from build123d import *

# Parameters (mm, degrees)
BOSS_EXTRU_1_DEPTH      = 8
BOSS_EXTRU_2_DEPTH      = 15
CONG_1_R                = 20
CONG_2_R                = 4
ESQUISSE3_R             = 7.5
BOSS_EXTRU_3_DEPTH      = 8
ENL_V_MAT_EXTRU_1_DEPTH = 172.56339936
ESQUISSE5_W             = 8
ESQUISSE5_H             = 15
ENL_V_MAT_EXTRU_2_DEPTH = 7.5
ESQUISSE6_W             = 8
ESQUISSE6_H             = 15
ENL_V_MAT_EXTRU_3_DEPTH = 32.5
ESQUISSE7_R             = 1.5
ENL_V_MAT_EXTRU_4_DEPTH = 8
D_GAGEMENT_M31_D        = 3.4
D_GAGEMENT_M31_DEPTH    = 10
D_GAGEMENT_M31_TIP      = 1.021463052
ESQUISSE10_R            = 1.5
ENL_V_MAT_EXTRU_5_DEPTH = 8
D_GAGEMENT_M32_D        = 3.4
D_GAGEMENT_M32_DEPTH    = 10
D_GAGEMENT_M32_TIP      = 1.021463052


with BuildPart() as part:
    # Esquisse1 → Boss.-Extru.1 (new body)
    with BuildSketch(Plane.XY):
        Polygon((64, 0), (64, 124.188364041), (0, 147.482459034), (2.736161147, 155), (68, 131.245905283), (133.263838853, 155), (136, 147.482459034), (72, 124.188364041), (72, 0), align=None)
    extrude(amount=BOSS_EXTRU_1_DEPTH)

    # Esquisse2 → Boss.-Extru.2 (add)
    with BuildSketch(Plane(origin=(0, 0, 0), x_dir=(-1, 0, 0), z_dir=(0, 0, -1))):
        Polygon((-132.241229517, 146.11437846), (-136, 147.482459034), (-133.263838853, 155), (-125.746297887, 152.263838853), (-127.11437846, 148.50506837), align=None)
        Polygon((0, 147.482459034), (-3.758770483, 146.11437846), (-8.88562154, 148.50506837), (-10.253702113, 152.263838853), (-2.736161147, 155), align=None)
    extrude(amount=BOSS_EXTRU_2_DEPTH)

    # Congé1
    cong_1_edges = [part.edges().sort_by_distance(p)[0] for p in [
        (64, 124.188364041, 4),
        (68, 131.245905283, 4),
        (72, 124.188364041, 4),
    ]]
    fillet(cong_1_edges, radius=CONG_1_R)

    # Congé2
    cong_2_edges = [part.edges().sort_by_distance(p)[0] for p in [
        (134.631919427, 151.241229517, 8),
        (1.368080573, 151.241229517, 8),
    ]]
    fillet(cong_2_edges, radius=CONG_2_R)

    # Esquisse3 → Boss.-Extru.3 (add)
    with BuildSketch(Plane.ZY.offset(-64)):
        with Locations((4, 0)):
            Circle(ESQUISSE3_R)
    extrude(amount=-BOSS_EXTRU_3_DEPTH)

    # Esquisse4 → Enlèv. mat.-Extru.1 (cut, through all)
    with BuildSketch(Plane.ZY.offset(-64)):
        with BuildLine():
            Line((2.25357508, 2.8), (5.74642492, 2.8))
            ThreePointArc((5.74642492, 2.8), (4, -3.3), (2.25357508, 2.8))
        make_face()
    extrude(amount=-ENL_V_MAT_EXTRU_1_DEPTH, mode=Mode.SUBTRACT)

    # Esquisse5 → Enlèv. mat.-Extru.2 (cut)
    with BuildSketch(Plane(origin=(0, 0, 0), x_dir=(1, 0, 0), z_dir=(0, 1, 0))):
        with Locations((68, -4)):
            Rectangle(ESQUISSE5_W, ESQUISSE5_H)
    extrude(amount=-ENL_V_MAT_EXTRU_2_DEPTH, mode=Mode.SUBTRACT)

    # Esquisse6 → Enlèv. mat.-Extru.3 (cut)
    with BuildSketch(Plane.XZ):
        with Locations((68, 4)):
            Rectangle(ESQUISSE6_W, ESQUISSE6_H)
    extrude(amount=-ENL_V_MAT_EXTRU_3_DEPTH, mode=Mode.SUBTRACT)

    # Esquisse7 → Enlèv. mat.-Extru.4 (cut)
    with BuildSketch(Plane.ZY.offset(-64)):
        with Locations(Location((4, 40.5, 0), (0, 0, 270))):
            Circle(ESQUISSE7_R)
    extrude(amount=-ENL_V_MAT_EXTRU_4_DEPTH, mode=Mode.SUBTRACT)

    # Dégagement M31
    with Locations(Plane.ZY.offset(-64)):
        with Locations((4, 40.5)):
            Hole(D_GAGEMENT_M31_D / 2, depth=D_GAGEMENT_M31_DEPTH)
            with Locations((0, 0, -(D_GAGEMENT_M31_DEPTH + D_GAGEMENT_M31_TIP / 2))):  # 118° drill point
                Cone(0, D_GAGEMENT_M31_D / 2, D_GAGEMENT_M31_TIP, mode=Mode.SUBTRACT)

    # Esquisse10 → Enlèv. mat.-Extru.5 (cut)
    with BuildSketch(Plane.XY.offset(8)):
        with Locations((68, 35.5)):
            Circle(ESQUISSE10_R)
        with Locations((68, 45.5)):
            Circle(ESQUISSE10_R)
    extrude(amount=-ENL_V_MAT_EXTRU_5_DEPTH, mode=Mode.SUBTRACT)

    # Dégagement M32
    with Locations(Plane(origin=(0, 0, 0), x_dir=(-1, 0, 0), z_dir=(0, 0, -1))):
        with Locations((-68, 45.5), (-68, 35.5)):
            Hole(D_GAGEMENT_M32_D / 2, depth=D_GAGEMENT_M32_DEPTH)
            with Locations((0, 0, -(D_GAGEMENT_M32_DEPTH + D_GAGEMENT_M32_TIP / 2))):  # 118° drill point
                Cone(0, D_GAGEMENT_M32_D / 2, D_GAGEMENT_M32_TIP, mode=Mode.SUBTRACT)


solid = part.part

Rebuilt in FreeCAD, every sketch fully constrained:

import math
import FreeCAD as App
import Part
import Sketcher
from FreeCAD import Vector
Q = App.Units.Quantity


def edges_at(feature, points):
    """Names of the edges that pass closest to the given points."""
    edges = feature.Shape.Edges
    near = lambda p: min(range(len(edges)), key=lambda i: edges[i].distToShape(Part.Vertex(*p))[0])
    return sorted({f"Edge{near(p) + 1}" for p in points})

doc = App.newDocument("Part")
body = doc.addObject("PartDesign::Body", "Body")

# Sketch on XY plane
sketch1 = doc.addObject("Sketcher::SketchObject", "Sketch")
body.addObject(sketch1)
sketch1.AttachmentSupport = (doc.XY_Plane, [""])
sketch1.MapMode = "FlatFace"
sketch1.addGeometry([
    Part.LineSegment(Vector(64, 124.188364, 0), Vector(64, 0, 0)),  # 0
    Part.LineSegment(Vector(64, 0, 0), Vector(72, 0, 0)),  # 1
    Part.LineSegment(Vector(72, 0, 0), Vector(72, 124.188364, 0)),  # 2
    Part.LineSegment(Vector(72, 124.188364, 0), Vector(136, 147.482459, 0)),  # 3
    Part.LineSegment(Vector(136, 147.482459, 0), Vector(133.263839, 155, 0)),  # 4
    Part.LineSegment(Vector(133.263839, 155, 0), Vector(68, 131.245905, 0)),  # 5
    Part.LineSegment(Vector(68, 131.245905, 0), Vector(2.736161, 155, 0)),  # 6
    Part.LineSegment(Vector(2.736161, 155, 0), Vector(0, 147.482459, 0)),  # 7
    Part.LineSegment(Vector(0, 147.482459, 0), Vector(64, 124.188364, 0)),  # 8
], False)
sketch1.addConstraint([
    Sketcher.Constraint("Coincident", 0, 2, 1, 1),
    Sketcher.Constraint("Coincident", 1, 2, 2, 1),
    Sketcher.Constraint("Coincident", 2, 2, 3, 1),
    Sketcher.Constraint("Coincident", 3, 2, 4, 1),
    Sketcher.Constraint("Coincident", 4, 2, 5, 1),
    Sketcher.Constraint("Coincident", 5, 2, 6, 1),
    Sketcher.Constraint("Coincident", 6, 2, 7, 1),
    Sketcher.Constraint("Coincident", 7, 2, 8, 1),
    Sketcher.Constraint("Coincident", 8, 2, 0, 1),
    Sketcher.Constraint("Vertical", 0),
    Sketcher.Constraint("Horizontal", 1),
    Sketcher.Constraint("Vertical", 2),
    Sketcher.Constraint("PointOnObject", 0, 2, -1),
    Sketcher.Constraint("PointOnObject", 7, 2, -2),
    Sketcher.Constraint("Perpendicular", 3, 4),
    Sketcher.Constraint("Perpendicular", 4, 5),
    Sketcher.Constraint("Perpendicular", 6, 7),
    Sketcher.Constraint("Perpendicular", 7, 8),
    Sketcher.Constraint("Horizontal", 4, 2, 6, 2),
    Sketcher.Constraint("Horizontal", 3, 2, 7, 2),
    Sketcher.Constraint("Horizontal", 2, 2, 8, 2),
    Sketcher.Constraint("Equal", 5, 6),
    Sketcher.Constraint("DistanceX", 1, 1, 1, 2, Q("8 mm")),
    Sketcher.Constraint("Angle", 3, Q("20 deg")),
    Sketcher.Constraint("Distance", 4, Q("8 mm")),
    Sketcher.Constraint("DistanceX", -1, 1, 0, 2, Q("64 mm")),
    Sketcher.Constraint("DistanceY", -1, 1, 4, 2, Q("155 mm")),
])
pad1 = doc.addObject("PartDesign::Pad", "Pad")
body.addObject(pad1)
pad1.Profile = sketch1
pad1.Length = 8

# Sketch on XY plane
sketch2 = doc.addObject("Sketcher::SketchObject", "Sketch001")
body.addObject(sketch2)
sketch2.AttachmentSupport = (doc.XY_Plane, [""])
sketch2.MapMode = "FlatFace"
sketch2.addGeometry([
    Part.LineSegment(Vector(136, 147.482459, 0), Vector(132.24123, 146.114378, 0)),  # 0
    Part.LineSegment(Vector(132.24123, 146.114378, 0), Vector(127.114378, 148.505068, 0)),  # 1
    Part.LineSegment(Vector(127.114378, 148.505068, 0), Vector(125.746298, 152.263839, 0)),  # 2
    Part.LineSegment(Vector(125.746298, 152.263839, 0), Vector(133.263839, 155, 0)),  # 3
    Part.LineSegment(Vector(133.263839, 155, 0), Vector(136, 147.482459, 0)),  # 4
    Part.LineSegment(Vector(3.75877, 146.114378, 0), Vector(0, 147.482459, 0)),  # 5
    Part.LineSegment(Vector(0, 147.482459, 0), Vector(2.736161, 155, 0)),  # 6
    Part.LineSegment(Vector(2.736161, 155, 0), Vector(10.253702, 152.263839, 0)),  # 7
    Part.LineSegment(Vector(10.253702, 152.263839, 0), Vector(8.885622, 148.505068, 0)),  # 8
    Part.LineSegment(Vector(8.885622, 148.505068, 0), Vector(3.75877, 146.114378, 0)),  # 9
], False)
sketch2.addConstraint([
    Sketcher.Constraint("Coincident", 0, 2, 1, 1),
    Sketcher.Constraint("Coincident", 1, 2, 2, 1),
    Sketcher.Constraint("Coincident", 2, 2, 3, 1),
    Sketcher.Constraint("Coincident", 3, 2, 4, 1),
    Sketcher.Constraint("Coincident", 4, 2, 0, 1),
    Sketcher.Constraint("Coincident", 5, 2, 6, 1),
    Sketcher.Constraint("Coincident", 6, 2, 7, 1),
    Sketcher.Constraint("Coincident", 7, 2, 8, 1),
    Sketcher.Constraint("Coincident", 8, 2, 9, 1),
    Sketcher.Constraint("Coincident", 9, 2, 5, 1),
    Sketcher.Constraint("PointOnObject", 5, 2, -2),
    Sketcher.Constraint("Perpendicular", 0, 2),
    Sketcher.Constraint("Perpendicular", 2, 3),
    Sketcher.Constraint("Perpendicular", 3, 4),
    Sketcher.Constraint("Perpendicular", 5, 6),
    Sketcher.Constraint("Perpendicular", 6, 7),
    Sketcher.Constraint("Perpendicular", 7, 8),
    Sketcher.Constraint("Horizontal", 4, 2, 5, 2),
    Sketcher.Constraint("Horizontal", 3, 2, 6, 2),
    Sketcher.Constraint("Horizontal", 2, 2, 7, 2),
    Sketcher.Constraint("Horizontal", 1, 2, 8, 2),
    Sketcher.Constraint("Horizontal", 0, 2, 9, 2),
    Sketcher.Constraint("Equal", 0, 2),
    Sketcher.Constraint("Equal", 3, 4),
    Sketcher.Constraint("Equal", 2, 5),
    Sketcher.Constraint("Angle", 0, Q("-160 deg")),
    Sketcher.Constraint("Distance", 0, Q("4 mm")),
    Sketcher.Constraint("Distance", 3, Q("8 mm")),
    Sketcher.Constraint("DistanceY", -1, 1, 3, 2, Q("155 mm")),
    Sketcher.Constraint("DistanceX", -1, 1, 4, 2, Q("136 mm")),
])
pad2 = doc.addObject("PartDesign::Pad", "Pad001")
body.addObject(pad2)
pad2.Profile = sketch2
pad2.Length = 15
pad2.Reversed = True
doc.recompute()

fillet = doc.addObject("PartDesign::Fillet", "Fillet")
body.addObject(fillet)
fillet.Base = (pad2, edges_at(pad2, [(64, 124.188, 4), (68, 131.246, 4), (72, 124.188, 4)]))
fillet.Radius = 20
doc.recompute()

fillet2 = doc.addObject("PartDesign::Fillet", "Fillet001")
body.addObject(fillet2)
fillet2.Base = (fillet, edges_at(fillet, [(134.632, 151.241, 8), (1.368, 151.241, 8)]))
fillet2.Radius = 4

# Sketch on YZ plane
sketch3 = doc.addObject("Sketcher::SketchObject", "Sketch002")
body.addObject(sketch3)
sketch3.AttachmentSupport = (doc.YZ_Plane, [""])
sketch3.MapMode = "FlatFace"
sketch3.AttachmentOffset = App.Placement(Vector(0, 0, 64), App.Rotation())
sketch3.addGeometry(Part.Circle(Vector(0, 4, 0), Vector(0, 0, 1), 7.5), False)
sketch3.addConstraint([
    Sketcher.Constraint("PointOnObject", 0, 3, -2),
    Sketcher.Constraint("Diameter", 0, Q("15 mm")),
    Sketcher.Constraint("DistanceY", -1, 1, 0, 3, Q("4 mm")),
])
pad3 = doc.addObject("PartDesign::Pad", "Pad002")
body.addObject(pad3)
pad3.Profile = sketch3
pad3.Length = 8

# Sketch on YZ plane
sketch4 = doc.addObject("Sketcher::SketchObject", "Sketch003")
body.addObject(sketch4)
sketch4.AttachmentSupport = (doc.YZ_Plane, [""])
sketch4.MapMode = "FlatFace"
sketch4.AttachmentOffset = App.Placement(Vector(0, 0, 64), App.Rotation())
sketch4.addGeometry([
    Part.LineSegment(Vector(2.8, 5.746425, 0), Vector(2.8, 2.253575, 0)),
    Part.ArcOfCircle(Part.Circle(Vector(0, 4, 0), Vector(0, 0, 1), 3.3), math.radians(31.952746), math.radians(328.047254)),
], False)
sketch4.addConstraint([
    Sketcher.Constraint("Coincident", 0, 1, 1, 1),
    Sketcher.Constraint("Coincident", 1, 2, 0, 2),
    Sketcher.Constraint("Vertical", 0),
    Sketcher.Constraint("PointOnObject", 1, 3, -2),
    Sketcher.Constraint("Radius", 1, Q("3.3 mm")),
    Sketcher.Constraint("DistanceY", -1, 1, 1, 3, Q("4 mm")),
    Sketcher.Constraint("DistanceX", -1, 1, 0, 1, Q("2.8 mm")),
])
pocket1 = doc.addObject("PartDesign::Pocket", "Pocket")
body.addObject(pocket1)
pocket1.Profile = sketch4
pocket1.Type = "ThroughAll"
pocket1.Reversed = True

# Sketch on XZ plane
sketch5 = doc.addObject("Sketcher::SketchObject", "Sketch004")
body.addObject(sketch5)
sketch5.AttachmentSupport = (doc.XZ_Plane, [""])
sketch5.MapMode = "FlatFace"
sketch5.addGeometry([
    Part.LineSegment(Vector(64, -3.5, 0), Vector(64, 11.5, 0)),
    Part.LineSegment(Vector(64, 11.5, 0), Vector(72, 11.5, 0)),
    Part.LineSegment(Vector(72, 11.5, 0), Vector(72, -3.5, 0)),
    Part.LineSegment(Vector(72, -3.5, 0), Vector(64, -3.5, 0)),
], False)
sketch5.addConstraint([
    Sketcher.Constraint("Coincident", 0, 2, 1, 1),
    Sketcher.Constraint("Coincident", 1, 2, 2, 1),
    Sketcher.Constraint("Coincident", 2, 2, 3, 1),
    Sketcher.Constraint("Coincident", 3, 2, 0, 1),
    Sketcher.Constraint("Vertical", 0),
    Sketcher.Constraint("Horizontal", 1),
    Sketcher.Constraint("Vertical", 2),
    Sketcher.Constraint("Horizontal", 3),
    Sketcher.Constraint("DistanceX", 1, 1, 1, 2, Q("8 mm")),
    Sketcher.Constraint("DistanceY", 0, 1, 0, 2, Q("15 mm")),
    Sketcher.Constraint("DistanceX", -1, 1, 0, 2, Q("64 mm")),
    Sketcher.Constraint("DistanceY", -1, 1, 0, 2, Q("11.5 mm")),
])
pocket2 = doc.addObject("PartDesign::Pocket", "Pocket001")
body.addObject(pocket2)
pocket2.Profile = sketch5
pocket2.Length = 7.5
pocket2.Reversed = True

# Sketch on XZ plane
sketch6 = doc.addObject("Sketcher::SketchObject", "Sketch005")
body.addObject(sketch6)
sketch6.AttachmentSupport = (doc.XZ_Plane, [""])
sketch6.MapMode = "FlatFace"
sketch6.addGeometry([
    Part.LineSegment(Vector(64, 11.5, 0), Vector(64, -3.5, 0)),
    Part.LineSegment(Vector(64, -3.5, 0), Vector(72, -3.5, 0)),
    Part.LineSegment(Vector(72, -3.5, 0), Vector(72, 11.5, 0)),
    Part.LineSegment(Vector(72, 11.5, 0), Vector(64, 11.5, 0)),
], False)
sketch6.addConstraint([
    Sketcher.Constraint("Coincident", 0, 2, 1, 1),
    Sketcher.Constraint("Coincident", 1, 2, 2, 1),
    Sketcher.Constraint("Coincident", 2, 2, 3, 1),
    Sketcher.Constraint("Coincident", 3, 2, 0, 1),
    Sketcher.Constraint("Vertical", 0),
    Sketcher.Constraint("Horizontal", 1),
    Sketcher.Constraint("Vertical", 2),
    Sketcher.Constraint("Horizontal", 3),
    Sketcher.Constraint("DistanceX", 1, 1, 1, 2, Q("8 mm")),
    Sketcher.Constraint("DistanceY", 0, 2, 0, 1, Q("15 mm")),
    Sketcher.Constraint("DistanceX", -1, 1, 0, 2, Q("64 mm")),
    Sketcher.Constraint("DistanceY", 0, 2, -1, 1, Q("3.5 mm")),
])
pocket3 = doc.addObject("PartDesign::Pocket", "Pocket002")
body.addObject(pocket3)
pocket3.Profile = sketch6
pocket3.Length = 32.5

# Sketch on YZ plane
sketch7 = doc.addObject("Sketcher::SketchObject", "Sketch006")
body.addObject(sketch7)
sketch7.AttachmentSupport = (doc.YZ_Plane, [""])
sketch7.MapMode = "FlatFace"
sketch7.AttachmentOffset = App.Placement(Vector(0, 0, 64), App.Rotation())
sketch7.addGeometry(Part.Circle(Vector(40.5, 4, 0), Vector(0, 0, 1), 1.5), False)
sketch7.addConstraint([
    Sketcher.Constraint("Diameter", 0, Q("3 mm")),
    Sketcher.Constraint("DistanceY", -1, 1, 0, 3, Q("4 mm")),
    Sketcher.Constraint("DistanceX", -1, 1, 0, 3, Q("40.5 mm")),
])
pocket4 = doc.addObject("PartDesign::Pocket", "Pocket003")
body.addObject(pocket4)
pocket4.Profile = sketch7
pocket4.Length = 8
pocket4.Reversed = True

# Sketch on YZ plane
sketch8 = doc.addObject("Sketcher::SketchObject", "Sketch007")
body.addObject(sketch8)
sketch8.AttachmentSupport = (doc.YZ_Plane, [""])
sketch8.MapMode = "FlatFace"
sketch8.AttachmentOffset = App.Placement(Vector(0, 0, 64), App.Rotation())
sketch8.addGeometry(Part.Circle(Vector(40.5, 4, 0), Vector(0, 0, 1), 1.7), False)
sketch8.addConstraint([
    Sketcher.Constraint("Diameter", 0, Q("3.4 mm")),
    Sketcher.Constraint("DistanceY", -1, 1, 0, 3, Q("4 mm")),
    Sketcher.Constraint("DistanceX", -1, 1, 0, 3, Q("40.5 mm")),
])
doc.recompute()
hole = doc.addObject("PartDesign::Hole", "Hole")
body.addObject(hole)
hole.Profile = sketch8
hole.ThreadType = "None"
hole.Diameter = 3.4
hole.DepthType = "Dimension"
hole.Depth = 10
hole.DrillPoint = "Angled"
hole.DrillPointAngle = 118
hole.Reversed = True

# Sketch on XY plane
sketch9 = doc.addObject("Sketcher::SketchObject", "Sketch008")
body.addObject(sketch9)
sketch9.AttachmentSupport = (doc.XY_Plane, [""])
sketch9.MapMode = "FlatFace"
sketch9.AttachmentOffset = App.Placement(Vector(0, 0, 8), App.Rotation())
sketch9.addGeometry([
    Part.Circle(Vector(68, 35.5, 0), Vector(0, 0, 1), 1.5),
    Part.Circle(Vector(68, 45.5, 0), Vector(0, 0, 1), 1.5),
], False)
sketch9.addConstraint([
    Sketcher.Constraint("Equal", 0, 1),
    Sketcher.Constraint("Vertical", 0, 3, 1, 3),
    Sketcher.Constraint("Diameter", 0, Q("3 mm")),
    Sketcher.Constraint("DistanceX", -1, 1, 0, 3, Q("68 mm")),
    Sketcher.Constraint("DistanceY", 0, 3, 1, 3, Q("10 mm")),
    Sketcher.Constraint("DistanceY", -1, 1, 0, 3, Q("35.5 mm")),
])
pocket5 = doc.addObject("PartDesign::Pocket", "Pocket004")
body.addObject(pocket5)
pocket5.Profile = sketch9
pocket5.Length = 8

# Sketch on XY plane
sketch10 = doc.addObject("Sketcher::SketchObject", "Sketch009")
body.addObject(sketch10)
sketch10.AttachmentSupport = (doc.XY_Plane, [""])
sketch10.MapMode = "FlatFace"
sketch10.addGeometry([
    Part.Circle(Vector(68, 45.5, 0), Vector(0, 0, 1), 1.7),
    Part.Circle(Vector(68, 35.5, 0), Vector(0, 0, 1), 1.7),
], False)
sketch10.addConstraint([
    Sketcher.Constraint("Equal", 0, 1),
    Sketcher.Constraint("Vertical", 0, 3, 1, 3),
    Sketcher.Constraint("Diameter", 0, Q("3.4 mm")),
    Sketcher.Constraint("DistanceX", -1, 1, 0, 3, Q("68 mm")),
    Sketcher.Constraint("DistanceY", 1, 3, 0, 3, Q("10 mm")),
    Sketcher.Constraint("DistanceY", -1, 1, 0, 3, Q("45.5 mm")),
])
doc.recompute()
hole2 = doc.addObject("PartDesign::Hole", "Hole001")
body.addObject(hole2)
hole2.Profile = sketch10
hole2.ThreadType = "None"
hole2.Diameter = 3.4
hole2.DepthType = "Dimension"
hole2.Depth = 10
hole2.DrillPoint = "Angled"
hole2.DrillPointAngle = 118
hole2.Reversed = True

doc.recompute()
